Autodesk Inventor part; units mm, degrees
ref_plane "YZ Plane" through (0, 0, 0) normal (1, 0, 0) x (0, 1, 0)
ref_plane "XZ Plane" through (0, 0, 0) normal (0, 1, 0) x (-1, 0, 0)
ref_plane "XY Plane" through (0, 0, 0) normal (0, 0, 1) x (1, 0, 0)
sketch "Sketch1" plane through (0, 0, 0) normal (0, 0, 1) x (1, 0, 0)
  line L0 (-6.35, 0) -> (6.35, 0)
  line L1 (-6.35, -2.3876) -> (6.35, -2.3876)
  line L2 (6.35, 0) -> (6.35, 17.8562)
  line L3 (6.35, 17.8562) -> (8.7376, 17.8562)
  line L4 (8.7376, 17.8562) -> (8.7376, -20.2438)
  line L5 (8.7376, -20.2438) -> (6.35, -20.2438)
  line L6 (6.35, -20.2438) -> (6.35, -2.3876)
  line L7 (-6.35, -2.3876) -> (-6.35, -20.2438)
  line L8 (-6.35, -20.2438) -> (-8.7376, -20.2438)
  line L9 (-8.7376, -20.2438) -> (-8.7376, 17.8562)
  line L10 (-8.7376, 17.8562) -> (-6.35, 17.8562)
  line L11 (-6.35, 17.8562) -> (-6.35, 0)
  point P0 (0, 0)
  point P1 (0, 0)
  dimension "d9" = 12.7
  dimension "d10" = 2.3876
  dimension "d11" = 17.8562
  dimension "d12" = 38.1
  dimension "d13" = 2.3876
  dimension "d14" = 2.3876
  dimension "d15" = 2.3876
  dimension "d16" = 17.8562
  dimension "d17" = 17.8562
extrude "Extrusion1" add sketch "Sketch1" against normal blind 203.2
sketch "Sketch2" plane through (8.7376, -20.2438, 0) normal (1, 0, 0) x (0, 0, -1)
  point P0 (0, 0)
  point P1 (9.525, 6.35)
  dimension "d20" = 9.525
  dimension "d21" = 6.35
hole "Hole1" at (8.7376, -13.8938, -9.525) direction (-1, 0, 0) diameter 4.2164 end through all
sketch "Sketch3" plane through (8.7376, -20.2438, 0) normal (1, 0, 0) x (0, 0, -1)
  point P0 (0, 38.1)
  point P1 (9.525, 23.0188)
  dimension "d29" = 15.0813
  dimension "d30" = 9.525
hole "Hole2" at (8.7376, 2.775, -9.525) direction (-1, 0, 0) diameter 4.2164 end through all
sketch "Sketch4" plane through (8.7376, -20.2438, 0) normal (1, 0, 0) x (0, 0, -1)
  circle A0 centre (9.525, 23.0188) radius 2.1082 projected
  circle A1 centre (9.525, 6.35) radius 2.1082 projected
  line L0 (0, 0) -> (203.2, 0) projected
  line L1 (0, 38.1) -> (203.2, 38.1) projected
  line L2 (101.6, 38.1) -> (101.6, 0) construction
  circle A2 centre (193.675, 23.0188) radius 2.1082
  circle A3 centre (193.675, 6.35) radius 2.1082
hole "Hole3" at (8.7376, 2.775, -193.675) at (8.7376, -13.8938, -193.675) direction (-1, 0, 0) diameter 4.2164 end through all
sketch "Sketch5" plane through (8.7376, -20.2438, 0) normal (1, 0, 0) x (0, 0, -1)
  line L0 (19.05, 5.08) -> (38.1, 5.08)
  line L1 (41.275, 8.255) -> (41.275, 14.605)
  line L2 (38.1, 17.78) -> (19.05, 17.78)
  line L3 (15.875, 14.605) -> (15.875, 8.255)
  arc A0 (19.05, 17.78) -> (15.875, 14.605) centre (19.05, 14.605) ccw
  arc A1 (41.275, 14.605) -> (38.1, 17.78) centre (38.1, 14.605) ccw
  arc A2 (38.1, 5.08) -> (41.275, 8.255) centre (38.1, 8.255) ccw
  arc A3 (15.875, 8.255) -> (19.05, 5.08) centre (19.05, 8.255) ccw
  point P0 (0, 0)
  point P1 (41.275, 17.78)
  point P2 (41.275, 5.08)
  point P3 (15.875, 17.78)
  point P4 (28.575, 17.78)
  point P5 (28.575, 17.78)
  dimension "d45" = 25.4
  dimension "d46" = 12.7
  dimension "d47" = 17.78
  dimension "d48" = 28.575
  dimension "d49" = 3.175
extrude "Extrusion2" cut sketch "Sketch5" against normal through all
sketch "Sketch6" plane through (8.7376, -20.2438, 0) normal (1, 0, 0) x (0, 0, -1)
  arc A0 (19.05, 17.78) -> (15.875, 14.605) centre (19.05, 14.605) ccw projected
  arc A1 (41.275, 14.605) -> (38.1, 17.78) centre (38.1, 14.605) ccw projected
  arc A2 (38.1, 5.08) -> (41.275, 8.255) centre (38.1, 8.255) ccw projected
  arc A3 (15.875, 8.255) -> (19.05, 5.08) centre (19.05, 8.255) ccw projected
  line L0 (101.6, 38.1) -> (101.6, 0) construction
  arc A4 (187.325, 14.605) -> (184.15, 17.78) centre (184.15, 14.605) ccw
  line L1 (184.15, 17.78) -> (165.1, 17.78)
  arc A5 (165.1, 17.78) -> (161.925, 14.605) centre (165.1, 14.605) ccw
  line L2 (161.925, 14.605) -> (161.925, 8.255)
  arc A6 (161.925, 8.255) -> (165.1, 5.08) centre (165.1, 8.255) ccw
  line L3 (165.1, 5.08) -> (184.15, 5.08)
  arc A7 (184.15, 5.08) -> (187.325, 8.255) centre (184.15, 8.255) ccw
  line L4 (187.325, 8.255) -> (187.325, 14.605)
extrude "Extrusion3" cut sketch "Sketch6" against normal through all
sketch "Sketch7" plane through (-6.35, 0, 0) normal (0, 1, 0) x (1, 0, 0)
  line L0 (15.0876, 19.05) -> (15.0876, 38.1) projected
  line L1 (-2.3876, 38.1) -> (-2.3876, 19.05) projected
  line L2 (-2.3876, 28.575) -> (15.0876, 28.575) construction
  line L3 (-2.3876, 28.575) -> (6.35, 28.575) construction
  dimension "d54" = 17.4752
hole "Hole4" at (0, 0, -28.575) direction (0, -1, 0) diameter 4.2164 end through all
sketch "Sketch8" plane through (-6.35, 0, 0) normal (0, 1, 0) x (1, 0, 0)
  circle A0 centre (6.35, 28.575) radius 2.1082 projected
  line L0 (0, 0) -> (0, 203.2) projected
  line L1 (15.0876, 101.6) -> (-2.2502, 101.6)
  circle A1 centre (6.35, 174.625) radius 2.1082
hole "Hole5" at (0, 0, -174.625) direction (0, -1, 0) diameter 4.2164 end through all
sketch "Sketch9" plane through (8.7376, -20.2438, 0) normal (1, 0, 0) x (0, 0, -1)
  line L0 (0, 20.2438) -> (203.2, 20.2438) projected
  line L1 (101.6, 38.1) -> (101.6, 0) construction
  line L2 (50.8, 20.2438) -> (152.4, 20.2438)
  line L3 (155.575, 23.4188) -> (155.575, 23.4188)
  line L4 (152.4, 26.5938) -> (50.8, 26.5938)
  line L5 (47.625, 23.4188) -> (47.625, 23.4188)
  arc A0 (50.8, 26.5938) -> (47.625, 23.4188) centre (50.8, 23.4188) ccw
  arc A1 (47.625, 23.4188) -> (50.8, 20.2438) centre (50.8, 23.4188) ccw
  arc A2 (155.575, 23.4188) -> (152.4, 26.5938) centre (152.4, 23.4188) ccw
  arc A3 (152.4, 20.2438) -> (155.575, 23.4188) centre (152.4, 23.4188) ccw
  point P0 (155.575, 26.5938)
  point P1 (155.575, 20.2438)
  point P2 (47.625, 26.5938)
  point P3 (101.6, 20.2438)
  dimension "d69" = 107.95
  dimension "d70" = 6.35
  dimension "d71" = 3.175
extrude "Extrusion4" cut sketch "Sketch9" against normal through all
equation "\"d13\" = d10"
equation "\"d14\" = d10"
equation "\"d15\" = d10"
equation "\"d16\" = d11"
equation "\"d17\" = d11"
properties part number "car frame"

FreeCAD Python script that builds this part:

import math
import FreeCAD as App
import Part
import Sketcher
Q = App.Units.Quantity


def add_polygon(sketch, points):
    """Adds a closed chain of lines whose ends are joined by coincident constraints."""
    first, n = sketch.GeometryCount, len(points)
    for a, b in zip(points, points[1:] + points[:1]):
        sketch.addGeometry(Part.LineSegment(App.Vector(*a, 0), App.Vector(*b, 0)), False)
    for i in range(n):
        sketch.addConstraint(Sketcher.Constraint("Coincident", first + i, 2, first + (i + 1) % n, 1))

doc = App.newDocument("Part")
body = doc.addObject("PartDesign::Body", "Body")

# Sketch on XY plane
sketch1 = body.newObject("Sketcher::SketchObject", "Sketch")
sketch1.AttachmentSupport = (doc.getObject("XY_Plane"), [""])
sketch1.MapMode = "FlatFace"
add_polygon(sketch1, [(6.35, 0), (-6.35, 0), (-6.35, 17.8562), (-8.7376, 17.8562), (-8.7376, -20.2438), (-6.35, -20.2438), (-6.35, -2.3876), (6.35, -2.3876), (6.35, -20.2438), (8.7376, -20.2438), (8.7376, 17.8562), (6.35, 17.8562)])  # lines 0-11
sketch1.addConstraint([
    Sketcher.Constraint("Horizontal", 0),
    Sketcher.Constraint("Vertical", 1),
    Sketcher.Constraint("Horizontal", 2),
    Sketcher.Constraint("Vertical", 3),
    Sketcher.Constraint("Horizontal", 4),
    Sketcher.Constraint("Vertical", 5),
    Sketcher.Constraint("Horizontal", 6),
    Sketcher.Constraint("Vertical", 7),
    Sketcher.Constraint("Horizontal", 8),
    Sketcher.Constraint("Vertical", 9),
    Sketcher.Constraint("Horizontal", 10),
    Sketcher.Constraint("Vertical", 11),
    Sketcher.Constraint("Symmetric", 0, 2, 11, 2, -1, 1),
    Sketcher.Constraint("Symmetric", 4, 2, 7, 2, -2),
    Sketcher.Constraint("Symmetric", 2, 2, 9, 2, -2),
    Sketcher.Constraint("Vertical", 1, 2, 4, 2),
    Sketcher.Constraint("Equal", 1, 5),
    Sketcher.Constraint("DistanceX", 0, 2, 0, 1, Q("0.5 in")),
    Sketcher.Constraint("DistanceY", 3, 2, 3, 1, Q("1.5 in")),
    Sketcher.Constraint("DistanceX", 2, 2, 2, 1, Q("0.094 in")),
    Sketcher.Constraint("DistanceY", 1, 1, 1, 2, Q("0.703 in")),
])
pad1 = body.newObject("PartDesign::Pad", "Pad")
pad1.Profile = sketch1
pad1.Length = Q("8 in")
pad1.Reversed = True

# Sketch on YZ plane
sketch2 = body.newObject("Sketcher::SketchObject", "Sketch001")
sketch2.AttachmentSupport = (doc.getObject("YZ_Plane"), [""])
sketch2.MapMode = "FlatFace"
sketch2.AttachmentOffset = App.Placement(App.Vector(0, 0, 0.344 * 25.4), App.Rotation())
sketch2.addGeometry(Part.Circle(App.Vector(-13.8938, -9.525, 0), App.Vector(0, 0, 1), 2.1082), False)
sketch2.addConstraint([
    Sketcher.Constraint("Diameter", 0, Q("0.166 in")),
    Sketcher.Constraint("DistanceX", 0, 3, -1, 1, Q("0.547 in")),
    Sketcher.Constraint("DistanceY", 0, 3, -1, 1, Q("0.375 in")),
])
doc.recompute()
hole = body.newObject("PartDesign::Hole", "Hole")
hole.Profile = sketch2
hole.ThreadType = "None"
hole.Diameter = Q("0.166 in")
hole.DepthType = "ThroughAll"

# Sketch on YZ plane
sketch3 = body.newObject("Sketcher::SketchObject", "Sketch002")
sketch3.AttachmentSupport = (doc.getObject("YZ_Plane"), [""])
sketch3.MapMode = "FlatFace"
sketch3.AttachmentOffset = App.Placement(App.Vector(0, 0, 0.344 * 25.4), App.Rotation())
sketch3.addGeometry(Part.Circle(App.Vector(2.775, -9.525, 0), App.Vector(0, 0, 1), 2.1082), False)
sketch3.addConstraint([
    Sketcher.Constraint("Diameter", 0, Q("0.166 in")),
    Sketcher.Constraint("DistanceY", 0, 3, -1, 1, Q("0.375 in")),
    Sketcher.Constraint("DistanceX", -1, 1, 0, 3, Q("2.775 mm")),
])
doc.recompute()
hole2 = body.newObject("PartDesign::Hole", "Hole001")
hole2.Profile = sketch3
hole2.ThreadType = "None"
hole2.Diameter = Q("0.166 in")
hole2.DepthType = "ThroughAll"

# Sketch on YZ plane
sketch4 = body.newObject("Sketcher::SketchObject", "Sketch003")
sketch4.AttachmentSupport = (doc.getObject("YZ_Plane"), [""])
sketch4.MapMode = "FlatFace"
sketch4.AttachmentOffset = App.Placement(App.Vector(0, 0, 0.344 * 25.4), App.Rotation())
sketch4.addGeometry([
    Part.Circle(App.Vector(2.775, -193.675, 0), App.Vector(0, 0, 1), 2.1082),
    Part.Circle(App.Vector(-13.8938, -193.675, 0), App.Vector(0, 0, 1), 2.1082),
], False)
sketch4.addConstraint([
    Sketcher.Constraint("Equal", 0, 1),
    Sketcher.Constraint("Horizontal", 0, 3, 1, 3),
    Sketcher.Constraint("Diameter", 0, Q("0.166 in")),
    Sketcher.Constraint("DistanceY", 0, 3, -1, 1, Q("7.625 in")),
    Sketcher.Constraint("DistanceX", 1, 3, -1, 1, Q("0.547 in")),
    Sketcher.Constraint("DistanceX", 1, 3, 0, 3, Q("0.656252 in")),
])
doc.recompute()
hole3 = body.newObject("PartDesign::Hole", "Hole002")
hole3.Profile = sketch4
hole3.ThreadType = "None"
hole3.Diameter = Q("0.166 in")
hole3.DepthType = "ThroughAll"

# Sketch on YZ plane
sketch5 = body.newObject("Sketcher::SketchObject", "Sketch004")
sketch5.AttachmentSupport = (doc.getObject("YZ_Plane"), [""])
sketch5.MapMode = "FlatFace"
sketch5.AttachmentOffset = App.Placement(App.Vector(0, 0, 0.344 * 25.4), App.Rotation())
sketch5.addGeometry([
    Part.ArcOfCircle(Part.Circle(App.Vector(-11.9888, -19.05, 0), App.Vector(0, 0, 1), 3.175), math.radians(90), math.radians(180)),  # 0
    Part.LineSegment(App.Vector(-15.1638, -19.05, 0), App.Vector(-15.1638, -38.1, 0)),  # 1
    Part.ArcOfCircle(Part.Circle(App.Vector(-11.9888, -38.1, 0), App.Vector(0, 0, 1), 3.175), math.radians(180), math.radians(270)),  # 2
    Part.LineSegment(App.Vector(-11.9888, -41.275, 0), App.Vector(-5.6388, -41.275, 0)),  # 3
    Part.ArcOfCircle(Part.Circle(App.Vector(-5.6388, -38.1, 0), App.Vector(0, 0, 1), 3.175), math.radians(-90), math.radians(0)),  # 4
    Part.LineSegment(App.Vector(-2.4638, -38.1, 0), App.Vector(-2.4638, -19.05, 0)),  # 5
    Part.ArcOfCircle(Part.Circle(App.Vector(-5.6388, -19.05, 0), App.Vector(0, 0, 1), 3.175), math.radians(0), math.radians(90)),  # 6
    Part.LineSegment(App.Vector(-5.6388, -15.875, 0), App.Vector(-11.9888, -15.875, 0)),  # 7
], False)
sketch5.addConstraint([
    Sketcher.Constraint("Tangent", 0, 2, 1, 1),
    Sketcher.Constraint("Tangent", 1, 2, 2, 1),
    Sketcher.Constraint("Tangent", 2, 2, 3, 1),
    Sketcher.Constraint("Tangent", 3, 2, 4, 1),
    Sketcher.Constraint("Tangent", 4, 2, 5, 1),
    Sketcher.Constraint("Tangent", 5, 2, 6, 1),
    Sketcher.Constraint("Tangent", 6, 2, 7, 1),
    Sketcher.Constraint("Tangent", 7, 2, 0, 1),
    Sketcher.Constraint("Vertical", 1),
    Sketcher.Constraint("Horizontal", 3),
    Sketcher.Constraint("Vertical", 5),
    Sketcher.Constraint("Horizontal", 7),
    Sketcher.Constraint("Equal", 0, 2),
    Sketcher.Constraint("Equal", 2, 4),
    Sketcher.Constraint("Equal", 4, 6),
    Sketcher.Constraint("Radius", 0, Q("0.125 in")),
    Sketcher.Constraint("DistanceX", 1, 2, 4, 2, Q("0.5 in")),
    Sketcher.Constraint("DistanceY", 1, 2, 1, 1, Q("0.75 in")),
    Sketcher.Constraint("DistanceY", 2, 3, -1, 1, Q("1.5 in")),
    Sketcher.Constraint("DistanceX", 0, 3, -1, 1, Q("0.472 in")),
])
pocket1 = body.newObject("PartDesign::Pocket", "Pocket")
pocket1.Profile = sketch5
pocket1.Type = "ThroughAll"

# Sketch on YZ plane
sketch6 = body.newObject("Sketcher::SketchObject", "Sketch005")
sketch6.AttachmentSupport = (doc.getObject("YZ_Plane"), [""])
sketch6.MapMode = "FlatFace"
sketch6.AttachmentOffset = App.Placement(App.Vector(0, 0, 0.344 * 25.4), App.Rotation())
sketch6.addGeometry([
    Part.LineSegment(App.Vector(-11.9888, -187.325, 0), App.Vector(-5.6388, -187.325, 0)),  # 0
    Part.ArcOfCircle(Part.Circle(App.Vector(-5.6388, -184.15, 0), App.Vector(0, 0, 1), 3.175), math.radians(-90), math.radians(0)),  # 1
    Part.LineSegment(App.Vector(-2.4638, -184.15, 0), App.Vector(-2.4638, -165.1, 0)),  # 2
    Part.ArcOfCircle(Part.Circle(App.Vector(-5.6388, -165.1, 0), App.Vector(0, 0, 1), 3.175), math.radians(0), math.radians(90)),  # 3
    Part.LineSegment(App.Vector(-5.6388, -161.925, 0), App.Vector(-11.9888, -161.925, 0)),  # 4
    Part.ArcOfCircle(Part.Circle(App.Vector(-11.9888, -165.1, 0), App.Vector(0, 0, 1), 3.175), math.radians(90), math.radians(180)),  # 5
    Part.LineSegment(App.Vector(-15.1638, -165.1, 0), App.Vector(-15.1638, -184.15, 0)),  # 6
    Part.ArcOfCircle(Part.Circle(App.Vector(-11.9888, -184.15, 0), App.Vector(0, 0, 1), 3.175), math.radians(180), math.radians(270)),  # 7
], False)
sketch6.addConstraint([
    Sketcher.Constraint("Tangent", 0, 2, 1, 1),
    Sketcher.Constraint("Tangent", 1, 2, 2, 1),
    Sketcher.Constraint("Tangent", 2, 2, 3, 1),
    Sketcher.Constraint("Tangent", 3, 2, 4, 1),
    Sketcher.Constraint("Tangent", 4, 2, 5, 1),
    Sketcher.Constraint("Tangent", 5, 2, 6, 1),
    Sketcher.Constraint("Tangent", 6, 2, 7, 1),
    Sketcher.Constraint("Tangent", 7, 2, 0, 1),
    Sketcher.Constraint("Horizontal", 0),
    Sketcher.Constraint("Vertical", 2),
    Sketcher.Constraint("Horizontal", 4),
    Sketcher.Constraint("Vertical", 6),
    Sketcher.Constraint("Equal", 1, 3),
    Sketcher.Constraint("Equal", 3, 5),
    Sketcher.Constraint("Equal", 5, 7),
    Sketcher.Constraint("Radius", 1, Q("0.125 in")),
    Sketcher.Constraint("DistanceX", 0, 1, 0, 2, Q("0.25 in")),
    Sketcher.Constraint("DistanceY", 2, 1, 2, 2, Q("0.75 in")),
    Sketcher.Constraint("DistanceY", 3, 3, -1, 1, Q("6.5 in")),
    Sketcher.Constraint("DistanceX", 1, 3, -1, 1, Q("0.222 in")),
])
pocket2 = body.newObject("PartDesign::Pocket", "Pocket001")
pocket2.Profile = sketch6
pocket2.Type = "ThroughAll"

# Sketch on XZ plane
sketch7 = body.newObject("Sketcher::SketchObject", "Sketch006")
sketch7.AttachmentSupport = (doc.getObject("XZ_Plane"), [""])
sketch7.MapMode = "FlatFace"
sketch7.addGeometry(Part.Circle(App.Vector(0, -28.575, 0), App.Vector(0, 0, 1), 2.1082), False)
sketch7.addConstraint([
    Sketcher.Constraint("PointOnObject", 0, 3, -2),
    Sketcher.Constraint("Diameter", 0, Q("0.166 in")),
    Sketcher.Constraint("DistanceY", 0, 3, -1, 1, Q("1.125 in")),
])
doc.recompute()
hole4 = body.newObject("PartDesign::Hole", "Hole003")
hole4.Profile = sketch7
hole4.ThreadType = "None"
hole4.Diameter = Q("0.166 in")
hole4.DepthType = "ThroughAll"
hole4.Reversed = True

# Sketch on XZ plane
sketch8 = body.newObject("Sketcher::SketchObject", "Sketch007")
sketch8.AttachmentSupport = (doc.getObject("XZ_Plane"), [""])
sketch8.MapMode = "FlatFace"
sketch8.addGeometry(Part.Circle(App.Vector(0, -174.625, 0), App.Vector(0, 0, 1), 2.1082), False)
sketch8.addConstraint([
    Sketcher.Constraint("PointOnObject", 0, 3, -2),
    Sketcher.Constraint("Diameter", 0, Q("0.166 in")),
    Sketcher.Constraint("DistanceY", 0, 3, -1, 1, Q("6.875 in")),
])
doc.recompute()
hole5 = body.newObject("PartDesign::Hole", "Hole004")
hole5.Profile = sketch8
hole5.ThreadType = "None"
hole5.Diameter = Q("0.166 in")
hole5.DepthType = "ThroughAll"
hole5.Reversed = True

# Sketch on YZ plane
sketch9 = body.newObject("Sketcher::SketchObject", "Sketch008")
sketch9.AttachmentSupport = (doc.getObject("YZ_Plane"), [""])
sketch9.MapMode = "FlatFace"
sketch9.AttachmentOffset = App.Placement(App.Vector(0, 0, 0.344 * 25.4), App.Rotation())
sketch9.addGeometry([
    Part.ArcOfCircle(Part.Circle(App.Vector(3.175, -50.8, 0), App.Vector(0, 0, 1), 3.175), math.radians(0), math.radians(180)),
    Part.LineSegment(App.Vector(0, -50.8, 0), App.Vector(0, -152.4, 0)),
    Part.ArcOfCircle(Part.Circle(App.Vector(3.175, -152.4, 0), App.Vector(0, 0, 1), 3.175), math.radians(180), math.radians(360)),
    Part.LineSegment(App.Vector(6.35, -152.4, 0), App.Vector(6.35, -50.8, 0)),
], False)
sketch9.addConstraint([
    Sketcher.Constraint("Tangent", 0, 2, 1, 1),
    Sketcher.Constraint("Tangent", 1, 2, 2, 1),
    Sketcher.Constraint("Tangent", 2, 2, 3, 1),
    Sketcher.Constraint("Tangent", 3, 2, 0, 1),
    Sketcher.Constraint("Vertical", 1),
    Sketcher.Constraint("Vertical", 3),
    Sketcher.Constraint("PointOnObject", 0, 2, -2),
    Sketcher.Constraint("Radius", 0, Q("0.125 in")),
    Sketcher.Constraint("DistanceY", 1, 2, 1, 1, Q("4 in")),
    Sketcher.Constraint("DistanceY", 0, 3, -1, 1, Q("2 in")),
])
pocket3 = body.newObject("PartDesign::Pocket", "Pocket002")
pocket3.Profile = sketch9
pocket3.Type = "ThroughAll"

doc.recompute()
